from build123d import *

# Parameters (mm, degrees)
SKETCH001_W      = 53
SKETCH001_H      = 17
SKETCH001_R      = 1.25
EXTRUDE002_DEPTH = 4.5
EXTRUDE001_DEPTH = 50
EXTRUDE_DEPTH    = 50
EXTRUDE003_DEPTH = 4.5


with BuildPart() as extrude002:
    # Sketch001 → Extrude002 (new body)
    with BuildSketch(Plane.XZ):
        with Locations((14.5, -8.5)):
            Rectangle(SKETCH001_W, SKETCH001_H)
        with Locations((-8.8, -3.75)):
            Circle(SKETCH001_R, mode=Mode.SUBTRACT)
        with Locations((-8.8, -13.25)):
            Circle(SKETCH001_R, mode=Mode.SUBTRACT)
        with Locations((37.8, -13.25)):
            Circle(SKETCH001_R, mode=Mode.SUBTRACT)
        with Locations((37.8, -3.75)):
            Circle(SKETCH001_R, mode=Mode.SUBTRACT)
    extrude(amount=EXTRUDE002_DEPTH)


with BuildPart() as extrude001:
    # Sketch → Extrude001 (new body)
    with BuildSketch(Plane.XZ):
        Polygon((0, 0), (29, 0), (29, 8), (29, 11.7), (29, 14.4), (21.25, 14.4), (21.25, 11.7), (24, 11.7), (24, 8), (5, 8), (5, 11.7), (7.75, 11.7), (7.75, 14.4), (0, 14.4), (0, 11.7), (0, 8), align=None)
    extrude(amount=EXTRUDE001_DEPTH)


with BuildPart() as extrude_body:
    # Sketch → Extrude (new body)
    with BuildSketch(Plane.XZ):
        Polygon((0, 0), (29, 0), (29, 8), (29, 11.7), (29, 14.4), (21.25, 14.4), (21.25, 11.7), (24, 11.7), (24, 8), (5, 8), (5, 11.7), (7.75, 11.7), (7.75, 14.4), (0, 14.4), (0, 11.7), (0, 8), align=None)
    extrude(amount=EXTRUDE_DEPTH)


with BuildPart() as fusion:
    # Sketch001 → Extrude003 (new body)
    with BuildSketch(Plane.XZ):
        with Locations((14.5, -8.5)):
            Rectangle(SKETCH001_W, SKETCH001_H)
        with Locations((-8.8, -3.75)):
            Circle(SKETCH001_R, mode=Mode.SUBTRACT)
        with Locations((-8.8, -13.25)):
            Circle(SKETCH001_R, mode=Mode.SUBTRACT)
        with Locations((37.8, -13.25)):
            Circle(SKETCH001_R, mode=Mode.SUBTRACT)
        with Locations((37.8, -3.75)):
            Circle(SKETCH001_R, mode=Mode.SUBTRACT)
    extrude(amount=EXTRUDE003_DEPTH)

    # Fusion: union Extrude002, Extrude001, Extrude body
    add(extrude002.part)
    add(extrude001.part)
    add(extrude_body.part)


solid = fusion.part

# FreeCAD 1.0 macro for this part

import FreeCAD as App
import Part
import Sketcher
Q = App.Units.Quantity


def add_polygon(sketch, points):
    """Adds a closed chain of lines whose ends are joined by coincident constraints."""
    first, n = sketch.GeometryCount, len(points)
    for a, b in zip(points, points[1:] + points[:1]):
        sketch.addGeometry(Part.LineSegment(App.Vector(*a, 0), App.Vector(*b, 0)), False)
    for i in range(n):
        sketch.addConstraint(Sketcher.Constraint("Coincident", first + i, 2, first + (i + 1) % n, 1))

doc = App.newDocument("Part")
body = doc.addObject("PartDesign::Body", "Body")

# Sketch on XZ plane
sketch1 = doc.addObject("Sketcher::SketchObject", "Sketch")
body.addObject(sketch1)
sketch1.AttachmentSupport = (doc.XZ_Plane, [""])
sketch1.MapMode = "FlatFace"
add_polygon(sketch1, [(-12, 0), (-12, -17), (41, -17), (41, 0)])  # lines 0-3
sketch1.addGeometry(Part.Circle(App.Vector(-8.8, -13.2, 0), App.Vector(0, 0, 1), 1.2), False)  # 4
sketch1.addGeometry(Part.Circle(App.Vector(37.8, -13.2, 0), App.Vector(0, 0, 1), 1.2), False)  # 5
sketch1.addGeometry(Part.Circle(App.Vector(-8.8, -3.8, 0), App.Vector(0, 0, 1), 1.2), False)  # 6
sketch1.addGeometry(Part.Circle(App.Vector(37.8, -3.8, 0), App.Vector(0, 0, 1), 1.2), False)  # 7
sketch1.addConstraint(Sketcher.Constraint("Vertical", 0))
sketch1.addConstraint(Sketcher.Constraint("Horizontal", 1))
sketch1.addConstraint(Sketcher.Constraint("Vertical", 2))
sketch1.addConstraint(Sketcher.Constraint("Horizontal", 3))
sketch1.addConstraint(Sketcher.Constraint("Equal", 4, 5))
sketch1.addConstraint(Sketcher.Constraint("Equal", 5, 6))
sketch1.addConstraint(Sketcher.Constraint("Equal", 6, 7))
sketch1.addConstraint(Sketcher.Constraint("PointOnObject", 2, 2, -1))
sketch1.addConstraint(Sketcher.Constraint("Horizontal", 4, 3, 5, 3))
sketch1.addConstraint(Sketcher.Constraint("Horizontal", 6, 3, 7, 3))
sketch1.addConstraint(Sketcher.Constraint("Vertical", 4, 3, 6, 3))
sketch1.addConstraint(Sketcher.Constraint("Vertical", 5, 3, 7, 3))
sketch1.addConstraint(Sketcher.Constraint("Diameter", 4, Q("2.5 mm")))
sketch1.addConstraint(Sketcher.Constraint("DistanceX", 1, 1, 1, 2, Q("53 mm")))
sketch1.addConstraint(Sketcher.Constraint("DistanceY", 0, 2, 0, 1, Q("17 mm")))
sketch1.addConstraint(Sketcher.Constraint("DistanceX", 0, 2, -1, 1, Q("12 mm")))
sketch1.addConstraint(Sketcher.Constraint("DistanceX", 4, 3, -1, 1, Q("8.8 mm")))
sketch1.addConstraint(Sketcher.Constraint("DistanceX", -1, 1, 5, 3, Q("37.8 mm")))
sketch1.addConstraint(Sketcher.Constraint("DistanceY", 4, 3, 6, 3, Q("9.5 mm")))
sketch1.addConstraint(Sketcher.Constraint("DistanceY", 4, 3, -1, 1, Q("13.25 mm")))
pad1 = doc.addObject("PartDesign::Pad", "Pad")
body.addObject(pad1)
pad1.Profile = sketch1
pad1.Length = 4.5
body2 = doc.addObject("PartDesign::Body", "Body001")

# Sketch on XZ plane
sketch2 = doc.addObject("Sketcher::SketchObject", "Sketch001")
body2.addObject(sketch2)
sketch2.AttachmentSupport = (doc.getObject("XZ_Plane001"), [""])
sketch2.MapMode = "FlatFace"
add_polygon(sketch2, [(0, 0), (29, 0), (29, 14.4), (21.2, 14.4), (21.2, 11.7), (24, 11.7), (24, 8), (5, 8), (5, 11.7), (7.8, 11.7), (7.8, 14.4), (0, 14.4)])  # lines 0-11
sketch2.addConstraint(Sketcher.Constraint("Horizontal", 0))
sketch2.addConstraint(Sketcher.Constraint("Vertical", 1))
sketch2.addConstraint(Sketcher.Constraint("Horizontal", 2))
sketch2.addConstraint(Sketcher.Constraint("Vertical", 3))
sketch2.addConstraint(Sketcher.Constraint("Horizontal", 4))
sketch2.addConstraint(Sketcher.Constraint("Vertical", 5))
sketch2.addConstraint(Sketcher.Constraint("Horizontal", 6))
sketch2.addConstraint(Sketcher.Constraint("Vertical", 7))
sketch2.addConstraint(Sketcher.Constraint("Horizontal", 8))
sketch2.addConstraint(Sketcher.Constraint("Vertical", 9))
sketch2.addConstraint(Sketcher.Constraint("Horizontal", 10))
sketch2.addConstraint(Sketcher.Constraint("Vertical", 11))
sketch2.addConstraint(Sketcher.Constraint("Coincident", 11, 2, -1, 1))
sketch2.addConstraint(Sketcher.Constraint("Horizontal", 4, 2, 7, 2))
sketch2.addConstraint(Sketcher.Constraint("Horizontal", 2, 2, 9, 2))
sketch2.addConstraint(Sketcher.Constraint("Equal", 4, 8))
sketch2.addConstraint(Sketcher.Constraint("Equal", 2, 10))
sketch2.addConstraint(Sketcher.Constraint("DistanceX", 0, 1, 0, 2, Q("29 mm")))
sketch2.addConstraint(Sketcher.Constraint("DistanceX", 6, 2, 6, 1, Q("19 mm")))
sketch2.addConstraint(Sketcher.Constraint("DistanceY", 1, 1, 1, 2, Q("14.4 mm")))
sketch2.addConstraint(Sketcher.Constraint("DistanceY", 3, 2, 3, 1, Q("2.7 mm")))
sketch2.addConstraint(Sketcher.Constraint("DistanceY", 5, 2, 5, 1, Q("3.7 mm")))
sketch2.addConstraint(Sketcher.Constraint("DistanceX", 2, 2, 2, 1, Q("7.75 mm")))
pad2 = doc.addObject("PartDesign::Pad", "Pad001")
body2.addObject(pad2)
pad2.Profile = sketch2
pad2.Length = 50
body3 = doc.addObject("PartDesign::Body", "Body002")

# Sketch on XZ plane
sketch3 = doc.addObject("Sketcher::SketchObject", "Sketch002")
body3.addObject(sketch3)
sketch3.AttachmentSupport = (doc.getObject("XZ_Plane002"), [""])
sketch3.MapMode = "FlatFace"
add_polygon(sketch3, [(0, 0), (29, 0), (29, 14.4), (21.2, 14.4), (21.2, 11.7), (24, 11.7), (24, 8), (5, 8), (5, 11.7), (7.8, 11.7), (7.8, 14.4), (0, 14.4)])  # lines 0-11
sketch3.addConstraint(Sketcher.Constraint("Horizontal", 0))
sketch3.addConstraint(Sketcher.Constraint("Vertical", 1))
sketch3.addConstraint(Sketcher.Constraint("Horizontal", 2))
sketch3.addConstraint(Sketcher.Constraint("Vertical", 3))
sketch3.addConstraint(Sketcher.Constraint("Horizontal", 4))
sketch3.addConstraint(Sketcher.Constraint("Vertical", 5))
sketch3.addConstraint(Sketcher.Constraint("Horizontal", 6))
sketch3.addConstraint(Sketcher.Constraint("Vertical", 7))
sketch3.addConstraint(Sketcher.Constraint("Horizontal", 8))
sketch3.addConstraint(Sketcher.Constraint("Vertical", 9))
sketch3.addConstraint(Sketcher.Constraint("Horizontal", 10))
sketch3.addConstraint(Sketcher.Constraint("Vertical", 11))
sketch3.addConstraint(Sketcher.Constraint("Coincident", 11, 2, -1, 1))
sketch3.addConstraint(Sketcher.Constraint("Horizontal", 4, 2, 7, 2))
sketch3.addConstraint(Sketcher.Constraint("Horizontal", 2, 2, 9, 2))
sketch3.addConstraint(Sketcher.Constraint("Equal", 4, 8))
sketch3.addConstraint(Sketcher.Constraint("Equal", 2, 10))
sketch3.addConstraint(Sketcher.Constraint("DistanceX", 0, 1, 0, 2, Q("29 mm")))
sketch3.addConstraint(Sketcher.Constraint("DistanceX", 6, 2, 6, 1, Q("19 mm")))
sketch3.addConstraint(Sketcher.Constraint("DistanceY", 1, 1, 1, 2, Q("14.4 mm")))
sketch3.addConstraint(Sketcher.Constraint("DistanceY", 3, 2, 3, 1, Q("2.7 mm")))
sketch3.addConstraint(Sketcher.Constraint("DistanceY", 5, 2, 5, 1, Q("3.7 mm")))
sketch3.addConstraint(Sketcher.Constraint("DistanceX", 2, 2, 2, 1, Q("7.75 mm")))
pad3 = doc.addObject("PartDesign::Pad", "Pad002")
body3.addObject(pad3)
pad3.Profile = sketch3
pad3.Length = 50
body4 = doc.addObject("PartDesign::Body", "Body003")

# Sketch on XZ plane
sketch4 = doc.addObject("Sketcher::SketchObject", "Sketch003")
body4.addObject(sketch4)
sketch4.AttachmentSupport = (doc.getObject("XZ_Plane003"), [""])
sketch4.MapMode = "FlatFace"
add_polygon(sketch4, [(-12, 0), (-12, -17), (41, -17), (41, 0)])  # lines 0-3
sketch4.addGeometry(Part.Circle(App.Vector(-8.8, -13.2, 0), App.Vector(0, 0, 1), 1.2), False)  # 4
sketch4.addGeometry(Part.Circle(App.Vector(37.8, -13.2, 0), App.Vector(0, 0, 1), 1.2), False)  # 5
sketch4.addGeometry(Part.Circle(App.Vector(-8.8, -3.8, 0), App.Vector(0, 0, 1), 1.2), False)  # 6
sketch4.addGeometry(Part.Circle(App.Vector(37.8, -3.8, 0), App.Vector(0, 0, 1), 1.2), False)  # 7
sketch4.addConstraint(Sketcher.Constraint("Vertical", 0))
sketch4.addConstraint(Sketcher.Constraint("Horizontal", 1))
sketch4.addConstraint(Sketcher.Constraint("Vertical", 2))
sketch4.addConstraint(Sketcher.Constraint("Horizontal", 3))
sketch4.addConstraint(Sketcher.Constraint("Equal", 4, 5))
sketch4.addConstraint(Sketcher.Constraint("Equal", 5, 6))
sketch4.addConstraint(Sketcher.Constraint("Equal", 6, 7))
sketch4.addConstraint(Sketcher.Constraint("PointOnObject", 2, 2, -1))
sketch4.addConstraint(Sketcher.Constraint("Horizontal", 4, 3, 5, 3))
sketch4.addConstraint(Sketcher.Constraint("Horizontal", 6, 3, 7, 3))
sketch4.addConstraint(Sketcher.Constraint("Vertical", 4, 3, 6, 3))
sketch4.addConstraint(Sketcher.Constraint("Vertical", 5, 3, 7, 3))
sketch4.addConstraint(Sketcher.Constraint("Diameter", 4, Q("2.5 mm")))
sketch4.addConstraint(Sketcher.Constraint("DistanceX", 1, 1, 1, 2, Q("53 mm")))
sketch4.addConstraint(Sketcher.Constraint("DistanceY", 0, 2, 0, 1, Q("17 mm")))
sketch4.addConstraint(Sketcher.Constraint("DistanceX", 0, 2, -1, 1, Q("12 mm")))
sketch4.addConstraint(Sketcher.Constraint("DistanceX", 4, 3, -1, 1, Q("8.8 mm")))
sketch4.addConstraint(Sketcher.Constraint("DistanceX", -1, 1, 5, 3, Q("37.8 mm")))
sketch4.addConstraint(Sketcher.Constraint("DistanceY", 4, 3, 6, 3, Q("9.5 mm")))
sketch4.addConstraint(Sketcher.Constraint("DistanceY", 4, 3, -1, 1, Q("13.25 mm")))
pad4 = doc.addObject("PartDesign::Pad", "Pad003")
body4.addObject(pad4)
pad4.Profile = sketch4
pad4.Length = 4.5
doc.recompute()

boolean = doc.addObject("PartDesign::Boolean", "Boolean")
body4.addObject(boolean)
boolean.Type = "Fuse"
boolean.addObjects([body])
doc.recompute()

boolean2 = doc.addObject("PartDesign::Boolean", "Boolean001")
body4.addObject(boolean2)
boolean2.Type = "Fuse"
boolean2.addObjects([body2])
doc.recompute()

boolean3 = doc.addObject("PartDesign::Boolean", "Boolean002")
body4.addObject(boolean3)
boolean3.Type = "Fuse"
boolean3.addObjects([body3])

doc.recompute()
